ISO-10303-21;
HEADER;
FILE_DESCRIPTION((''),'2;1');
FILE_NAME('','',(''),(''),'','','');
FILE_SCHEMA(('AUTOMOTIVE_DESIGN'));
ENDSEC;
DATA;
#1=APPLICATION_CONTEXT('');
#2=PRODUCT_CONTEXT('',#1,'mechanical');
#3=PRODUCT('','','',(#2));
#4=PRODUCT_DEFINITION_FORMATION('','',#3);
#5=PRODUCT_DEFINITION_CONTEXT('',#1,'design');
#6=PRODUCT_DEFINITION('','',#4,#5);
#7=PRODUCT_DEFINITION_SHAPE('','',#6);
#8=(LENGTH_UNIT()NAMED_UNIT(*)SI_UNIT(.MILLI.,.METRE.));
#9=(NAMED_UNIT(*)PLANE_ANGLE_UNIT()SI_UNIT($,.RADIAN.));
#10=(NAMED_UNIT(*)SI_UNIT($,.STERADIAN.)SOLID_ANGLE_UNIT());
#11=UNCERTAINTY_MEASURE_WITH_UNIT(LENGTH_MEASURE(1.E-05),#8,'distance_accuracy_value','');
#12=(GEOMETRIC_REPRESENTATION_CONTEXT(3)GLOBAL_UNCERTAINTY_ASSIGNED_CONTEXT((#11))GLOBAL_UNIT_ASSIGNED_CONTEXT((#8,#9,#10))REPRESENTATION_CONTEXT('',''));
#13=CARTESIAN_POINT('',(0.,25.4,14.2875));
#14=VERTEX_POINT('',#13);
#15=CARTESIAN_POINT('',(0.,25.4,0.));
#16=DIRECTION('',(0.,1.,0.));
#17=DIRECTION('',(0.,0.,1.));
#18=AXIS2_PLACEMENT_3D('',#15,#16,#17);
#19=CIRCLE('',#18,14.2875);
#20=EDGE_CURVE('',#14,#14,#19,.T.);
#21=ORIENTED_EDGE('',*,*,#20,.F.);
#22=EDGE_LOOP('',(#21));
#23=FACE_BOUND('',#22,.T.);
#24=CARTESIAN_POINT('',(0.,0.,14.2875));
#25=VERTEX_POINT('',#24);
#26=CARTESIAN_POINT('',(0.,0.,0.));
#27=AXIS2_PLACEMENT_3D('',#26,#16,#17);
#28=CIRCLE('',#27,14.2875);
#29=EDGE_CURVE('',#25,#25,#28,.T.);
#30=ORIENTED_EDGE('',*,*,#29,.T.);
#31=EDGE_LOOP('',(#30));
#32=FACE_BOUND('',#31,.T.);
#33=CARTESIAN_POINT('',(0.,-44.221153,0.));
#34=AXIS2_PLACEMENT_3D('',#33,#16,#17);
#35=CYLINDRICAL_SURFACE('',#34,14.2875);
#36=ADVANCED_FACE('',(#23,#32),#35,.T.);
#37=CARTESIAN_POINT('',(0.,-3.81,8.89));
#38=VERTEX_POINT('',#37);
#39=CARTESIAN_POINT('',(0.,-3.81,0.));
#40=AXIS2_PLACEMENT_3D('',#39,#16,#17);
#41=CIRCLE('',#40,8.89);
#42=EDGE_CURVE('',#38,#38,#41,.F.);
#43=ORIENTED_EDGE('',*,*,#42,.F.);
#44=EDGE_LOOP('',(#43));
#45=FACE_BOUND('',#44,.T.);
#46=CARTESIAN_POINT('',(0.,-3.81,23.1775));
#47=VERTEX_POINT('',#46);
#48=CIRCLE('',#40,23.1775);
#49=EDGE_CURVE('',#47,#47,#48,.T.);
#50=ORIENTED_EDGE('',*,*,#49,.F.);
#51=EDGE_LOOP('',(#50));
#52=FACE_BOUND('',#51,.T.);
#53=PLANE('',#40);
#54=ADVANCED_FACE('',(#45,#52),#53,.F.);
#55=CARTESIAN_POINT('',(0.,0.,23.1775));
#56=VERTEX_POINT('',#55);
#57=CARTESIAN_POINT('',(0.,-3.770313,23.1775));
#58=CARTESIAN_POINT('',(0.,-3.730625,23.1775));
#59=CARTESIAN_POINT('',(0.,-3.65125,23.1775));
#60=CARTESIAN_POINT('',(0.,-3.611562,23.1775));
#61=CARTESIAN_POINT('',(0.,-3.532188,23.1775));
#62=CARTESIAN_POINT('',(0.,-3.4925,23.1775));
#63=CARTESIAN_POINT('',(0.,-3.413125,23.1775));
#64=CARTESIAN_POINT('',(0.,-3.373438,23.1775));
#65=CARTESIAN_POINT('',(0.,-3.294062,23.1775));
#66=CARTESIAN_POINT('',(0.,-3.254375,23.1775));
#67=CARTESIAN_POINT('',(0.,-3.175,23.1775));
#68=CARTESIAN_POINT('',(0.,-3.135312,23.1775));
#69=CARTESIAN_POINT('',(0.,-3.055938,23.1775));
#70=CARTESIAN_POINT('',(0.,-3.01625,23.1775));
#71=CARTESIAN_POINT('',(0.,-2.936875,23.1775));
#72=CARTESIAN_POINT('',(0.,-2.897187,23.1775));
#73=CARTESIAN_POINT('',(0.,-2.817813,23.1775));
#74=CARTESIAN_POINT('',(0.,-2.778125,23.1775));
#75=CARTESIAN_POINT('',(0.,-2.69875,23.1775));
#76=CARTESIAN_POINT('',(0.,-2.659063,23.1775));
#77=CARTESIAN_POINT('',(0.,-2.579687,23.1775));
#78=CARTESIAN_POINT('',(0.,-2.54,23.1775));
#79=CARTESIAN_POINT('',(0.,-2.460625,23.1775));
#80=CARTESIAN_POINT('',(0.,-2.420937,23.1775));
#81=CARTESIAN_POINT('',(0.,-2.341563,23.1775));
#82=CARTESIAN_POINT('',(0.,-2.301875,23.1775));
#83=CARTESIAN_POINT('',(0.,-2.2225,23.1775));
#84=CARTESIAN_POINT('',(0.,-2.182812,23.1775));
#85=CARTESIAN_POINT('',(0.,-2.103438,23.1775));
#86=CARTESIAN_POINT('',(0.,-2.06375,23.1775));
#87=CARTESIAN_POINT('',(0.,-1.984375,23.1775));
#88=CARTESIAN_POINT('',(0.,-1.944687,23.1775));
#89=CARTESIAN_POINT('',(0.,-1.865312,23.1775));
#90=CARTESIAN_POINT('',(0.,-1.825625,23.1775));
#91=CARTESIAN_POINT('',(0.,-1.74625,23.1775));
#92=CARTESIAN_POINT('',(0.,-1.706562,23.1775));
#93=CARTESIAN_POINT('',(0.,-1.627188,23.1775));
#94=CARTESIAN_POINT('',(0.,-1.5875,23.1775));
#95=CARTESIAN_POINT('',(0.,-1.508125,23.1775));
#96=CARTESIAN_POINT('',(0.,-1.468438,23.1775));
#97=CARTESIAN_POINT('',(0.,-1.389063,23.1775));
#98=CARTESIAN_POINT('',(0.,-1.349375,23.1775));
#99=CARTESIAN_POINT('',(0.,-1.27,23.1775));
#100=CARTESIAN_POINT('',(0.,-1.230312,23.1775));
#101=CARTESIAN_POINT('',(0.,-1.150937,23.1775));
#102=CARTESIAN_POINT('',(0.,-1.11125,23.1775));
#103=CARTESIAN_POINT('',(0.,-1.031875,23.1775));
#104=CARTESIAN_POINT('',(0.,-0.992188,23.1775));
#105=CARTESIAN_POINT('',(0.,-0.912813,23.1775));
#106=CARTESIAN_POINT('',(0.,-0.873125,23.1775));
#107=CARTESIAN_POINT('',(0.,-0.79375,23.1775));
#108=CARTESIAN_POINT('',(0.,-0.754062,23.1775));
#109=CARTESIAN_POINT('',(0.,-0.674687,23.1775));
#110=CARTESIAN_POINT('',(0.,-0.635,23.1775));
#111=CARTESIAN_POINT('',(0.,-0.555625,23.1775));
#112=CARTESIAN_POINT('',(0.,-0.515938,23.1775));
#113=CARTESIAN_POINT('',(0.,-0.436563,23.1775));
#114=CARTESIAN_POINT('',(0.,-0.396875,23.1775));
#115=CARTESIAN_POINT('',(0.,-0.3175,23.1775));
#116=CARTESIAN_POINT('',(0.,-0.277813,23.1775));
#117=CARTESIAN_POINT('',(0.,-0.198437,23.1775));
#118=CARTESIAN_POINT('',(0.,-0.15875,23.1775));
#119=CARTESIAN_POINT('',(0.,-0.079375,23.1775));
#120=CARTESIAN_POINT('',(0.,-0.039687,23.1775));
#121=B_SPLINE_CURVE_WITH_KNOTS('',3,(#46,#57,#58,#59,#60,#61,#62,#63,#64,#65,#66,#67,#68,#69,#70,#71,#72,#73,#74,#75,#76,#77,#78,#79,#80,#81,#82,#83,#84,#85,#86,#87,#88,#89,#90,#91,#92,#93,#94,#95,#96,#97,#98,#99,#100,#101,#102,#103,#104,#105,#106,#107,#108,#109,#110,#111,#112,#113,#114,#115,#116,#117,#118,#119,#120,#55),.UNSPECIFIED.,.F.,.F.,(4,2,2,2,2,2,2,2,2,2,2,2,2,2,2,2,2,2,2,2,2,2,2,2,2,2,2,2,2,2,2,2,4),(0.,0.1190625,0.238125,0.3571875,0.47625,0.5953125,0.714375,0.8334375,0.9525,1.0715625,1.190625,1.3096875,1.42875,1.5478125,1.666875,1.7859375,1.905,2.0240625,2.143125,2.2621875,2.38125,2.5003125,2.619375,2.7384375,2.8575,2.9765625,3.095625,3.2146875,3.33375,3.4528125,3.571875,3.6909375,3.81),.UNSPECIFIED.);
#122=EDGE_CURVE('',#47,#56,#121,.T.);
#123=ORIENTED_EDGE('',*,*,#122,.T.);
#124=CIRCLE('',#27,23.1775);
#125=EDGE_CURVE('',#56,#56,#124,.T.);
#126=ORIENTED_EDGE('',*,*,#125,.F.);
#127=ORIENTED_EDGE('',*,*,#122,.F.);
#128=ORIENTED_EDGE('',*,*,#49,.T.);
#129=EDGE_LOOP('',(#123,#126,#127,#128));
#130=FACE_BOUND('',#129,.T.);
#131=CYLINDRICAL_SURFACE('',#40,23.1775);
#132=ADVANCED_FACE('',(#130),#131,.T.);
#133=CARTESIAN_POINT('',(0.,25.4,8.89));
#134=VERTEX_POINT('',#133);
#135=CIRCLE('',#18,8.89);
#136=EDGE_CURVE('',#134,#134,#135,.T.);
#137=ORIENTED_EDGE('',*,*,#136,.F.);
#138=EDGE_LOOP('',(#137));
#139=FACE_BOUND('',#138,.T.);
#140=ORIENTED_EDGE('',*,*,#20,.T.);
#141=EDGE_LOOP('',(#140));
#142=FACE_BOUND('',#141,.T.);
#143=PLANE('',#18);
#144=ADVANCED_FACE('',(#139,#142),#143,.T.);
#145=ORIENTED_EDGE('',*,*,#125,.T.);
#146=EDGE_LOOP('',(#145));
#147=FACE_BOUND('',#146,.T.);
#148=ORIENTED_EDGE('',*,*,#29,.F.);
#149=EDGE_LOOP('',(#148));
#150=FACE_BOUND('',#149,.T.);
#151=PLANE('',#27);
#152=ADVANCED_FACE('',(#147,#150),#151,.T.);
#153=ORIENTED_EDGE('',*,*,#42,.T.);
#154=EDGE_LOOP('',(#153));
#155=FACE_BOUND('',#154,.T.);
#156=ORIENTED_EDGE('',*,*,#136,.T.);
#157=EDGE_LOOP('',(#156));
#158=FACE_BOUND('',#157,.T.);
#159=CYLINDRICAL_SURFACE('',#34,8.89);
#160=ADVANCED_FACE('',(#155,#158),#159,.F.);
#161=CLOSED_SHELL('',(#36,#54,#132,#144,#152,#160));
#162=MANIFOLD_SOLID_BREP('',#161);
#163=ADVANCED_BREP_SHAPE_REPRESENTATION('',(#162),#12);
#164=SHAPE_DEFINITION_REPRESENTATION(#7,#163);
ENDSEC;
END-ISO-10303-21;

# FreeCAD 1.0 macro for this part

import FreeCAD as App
import Part
import Sketcher

V = App.Vector
Q = App.Units.Quantity

doc = App.newDocument("Part")
body = doc.addObject("PartDesign::Body", "Body")

# Sketch on XZ plane
sketch1 = doc.addObject("Sketcher::SketchObject", "Sketch")
body.addObject(sketch1)
sketch1.AttachmentSupport = (doc.XZ_Plane, [""])
sketch1.MapMode = "FlatFace"
sketch1.addGeometry(Part.Circle(V(0, 0, 0), V(0, 0, 1), 23.1775), False)
sketch1.addGeometry(Part.Circle(V(0, 0, 0), V(0, 0, 1), 14.2875), False)
sketch1.addConstraint(Sketcher.Constraint("Coincident", 0, 3, -1, 1))
sketch1.addConstraint(Sketcher.Constraint("Coincident", 1, 3, -1, 1))
sketch1.addConstraint(Sketcher.Constraint("Diameter", 0, Q("1.825 in")))
sketch1.addConstraint(Sketcher.Constraint("Diameter", 1, Q("1.125 in")))
pad1 = doc.addObject("PartDesign::Pad", "Pad")
body.addObject(pad1)
pad1.Profile = sketch1
pad1.Length = Q("0.15 in")

# Sketch on XZ plane
sketch2 = doc.addObject("Sketcher::SketchObject", "Sketch001")
body.addObject(sketch2)
sketch2.AttachmentSupport = (doc.XZ_Plane, [""])
sketch2.MapMode = "FlatFace"
sketch2.addGeometry(Part.Circle(V(0, 0, 0), V(0, 0, 1), 14.2875), False)
sketch2.addGeometry(Part.Circle(V(0, 0, 0), V(0, 0, 1), 8.89), False)
sketch2.addConstraint(Sketcher.Constraint("Coincident", 0, 3, -1, 1))
sketch2.addConstraint(Sketcher.Constraint("Coincident", 1, 3, -1, 1))
sketch2.addConstraint(Sketcher.Constraint("Diameter", 1, Q("0.7 in")))
sketch2.addConstraint(Sketcher.Constraint("Diameter", 0, Q("1.125 in")))
pad2 = doc.addObject("PartDesign::Pad", "Pad001")
body.addObject(pad2)
pad2.Profile = sketch2
pad2.Type = "TwoLengths"
pad2.Length = Q("1 in")
pad2.Length2 = Q("0.15 in")
pad2.Reversed = True

doc.recompute()
